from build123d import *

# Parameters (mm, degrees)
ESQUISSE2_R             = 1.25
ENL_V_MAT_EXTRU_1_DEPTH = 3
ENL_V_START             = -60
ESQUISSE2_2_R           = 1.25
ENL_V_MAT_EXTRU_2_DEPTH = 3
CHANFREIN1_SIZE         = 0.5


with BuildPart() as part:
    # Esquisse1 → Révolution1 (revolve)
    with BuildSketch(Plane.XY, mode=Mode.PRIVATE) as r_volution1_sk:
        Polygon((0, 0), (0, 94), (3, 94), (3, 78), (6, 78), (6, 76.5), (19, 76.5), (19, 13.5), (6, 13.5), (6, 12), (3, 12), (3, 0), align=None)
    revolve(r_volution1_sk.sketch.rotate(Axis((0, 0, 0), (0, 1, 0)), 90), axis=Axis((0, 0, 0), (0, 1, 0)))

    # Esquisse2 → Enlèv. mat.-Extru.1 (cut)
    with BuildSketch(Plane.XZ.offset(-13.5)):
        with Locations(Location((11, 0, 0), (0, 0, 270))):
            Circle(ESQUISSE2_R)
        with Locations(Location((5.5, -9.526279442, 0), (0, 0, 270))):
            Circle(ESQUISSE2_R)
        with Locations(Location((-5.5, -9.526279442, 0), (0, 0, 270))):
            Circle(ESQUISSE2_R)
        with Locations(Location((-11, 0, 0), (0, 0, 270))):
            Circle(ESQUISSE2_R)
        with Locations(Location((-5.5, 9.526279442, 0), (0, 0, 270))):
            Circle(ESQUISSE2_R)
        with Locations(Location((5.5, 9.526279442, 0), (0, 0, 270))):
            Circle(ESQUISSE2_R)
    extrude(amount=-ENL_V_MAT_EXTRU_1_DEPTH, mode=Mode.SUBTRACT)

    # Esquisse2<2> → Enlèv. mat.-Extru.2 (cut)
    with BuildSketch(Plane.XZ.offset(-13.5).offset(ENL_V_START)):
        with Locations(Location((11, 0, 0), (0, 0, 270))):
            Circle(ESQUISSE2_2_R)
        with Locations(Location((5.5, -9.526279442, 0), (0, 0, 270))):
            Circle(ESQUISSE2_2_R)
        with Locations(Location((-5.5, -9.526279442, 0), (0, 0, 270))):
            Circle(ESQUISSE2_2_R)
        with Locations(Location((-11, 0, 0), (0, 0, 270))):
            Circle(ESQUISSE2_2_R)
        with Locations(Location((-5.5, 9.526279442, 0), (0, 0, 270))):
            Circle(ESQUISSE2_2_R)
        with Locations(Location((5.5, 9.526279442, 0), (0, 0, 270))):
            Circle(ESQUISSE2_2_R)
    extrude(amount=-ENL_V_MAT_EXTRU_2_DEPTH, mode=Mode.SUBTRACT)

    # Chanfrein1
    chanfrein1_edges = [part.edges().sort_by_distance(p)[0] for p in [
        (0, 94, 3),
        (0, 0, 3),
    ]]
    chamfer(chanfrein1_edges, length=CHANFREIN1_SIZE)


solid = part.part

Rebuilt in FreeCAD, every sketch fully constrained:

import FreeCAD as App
import Part
import Sketcher


def edges_at(feature, points):
    """Names of the edges that pass closest to the given points."""
    edges = feature.Shape.Edges
    near = lambda p: min(range(len(edges)), key=lambda i: edges[i].distToShape(Part.Vertex(*p))[0])
    return sorted({f"Edge{near(p) + 1}" for p in points})

doc = App.newDocument("Part")
params = doc.addObject("Spreadsheet::Sheet", "Params")
for row, (alias, value) in enumerate([
    ("sketch1_width", "3 mm"),
    ("sketch1_width2", "13 mm"),
    ("sketch1_height", "94 mm"),
    ("sketch1_height2", "12 mm"),
    ("sketch1_height3", "63 mm"),
    ("revolution_angle", "360 deg"),
    ("sketch2_diameter", "2.5 mm"),
    ("pocket1_length", "3 mm"),
    ("sketch3_diameter", "2.5 mm"),
    ("pocket2_length", "3 mm"),
    ("chamfer_size", "0.5 mm"),
], start=1):
    params.set(f"A{row}", alias)
    params.set(f"B{row}", "=" + value)
    params.setAlias(f"B{row}", alias)

body = doc.addObject("PartDesign::Body", "Body")

sketch1 = body.newObject("Sketcher::SketchObject", "Sketch")
sketch1.AttachmentSupport = (doc.getObject("XY_Plane"), [""])
sketch1.MapMode = "FlatFace"
sketch1.addGeometry([
    Part.LineSegment(App.Vector(0, 94, 0), App.Vector(0, 0, 0)),
    Part.LineSegment(App.Vector(0, 0, 0), App.Vector(3, 0, 0)),
    Part.LineSegment(App.Vector(3, 0, 0), App.Vector(3, 12, 0)),
    Part.LineSegment(App.Vector(3, 12, 0), App.Vector(6, 12, 0)),
    Part.LineSegment(App.Vector(6, 12, 0), App.Vector(6, 13.5, 0)),
    Part.LineSegment(App.Vector(6, 13.5, 0), App.Vector(19, 13.5, 0)),
    Part.LineSegment(App.Vector(19, 13.5, 0), App.Vector(19, 76.5, 0)),
    Part.LineSegment(App.Vector(19, 76.5, 0), App.Vector(6, 76.5, 0)),
    Part.LineSegment(App.Vector(6, 76.5, 0), App.Vector(6, 78, 0)),
    Part.LineSegment(App.Vector(6, 78, 0), App.Vector(3, 78, 0)),
    Part.LineSegment(App.Vector(3, 78, 0), App.Vector(3, 94, 0)),
    Part.LineSegment(App.Vector(3, 94, 0), App.Vector(0, 94, 0)),
], False)
sketch1.addConstraint([
    Sketcher.Constraint("Coincident", 0, 2, 1, 1),
    Sketcher.Constraint("Coincident", 1, 2, 2, 1),
    Sketcher.Constraint("Coincident", 2, 2, 3, 1),
    Sketcher.Constraint("Coincident", 3, 2, 4, 1),
    Sketcher.Constraint("Coincident", 4, 2, 5, 1),
    Sketcher.Constraint("Coincident", 5, 2, 6, 1),
    Sketcher.Constraint("Coincident", 6, 2, 7, 1),
    Sketcher.Constraint("Coincident", 7, 2, 8, 1),
    Sketcher.Constraint("Coincident", 8, 2, 9, 1),
    Sketcher.Constraint("Coincident", 9, 2, 10, 1),
    Sketcher.Constraint("Coincident", 10, 2, 11, 1),
    Sketcher.Constraint("Coincident", 11, 2, 0, 1),
    Sketcher.Constraint("Vertical", 0),
    Sketcher.Constraint("Horizontal", 1),
    Sketcher.Constraint("Vertical", 2),
    Sketcher.Constraint("Horizontal", 3),
    Sketcher.Constraint("Vertical", 4),
    Sketcher.Constraint("Horizontal", 5),
    Sketcher.Constraint("Vertical", 6),
    Sketcher.Constraint("Horizontal", 7),
    Sketcher.Constraint("Vertical", 8),
    Sketcher.Constraint("Horizontal", 9),
    Sketcher.Constraint("Vertical", 10),
    Sketcher.Constraint("Horizontal", 11),
    Sketcher.Constraint("Coincident", 0, 2, -1, 1),
    Sketcher.Constraint("Vertical", 4, 2, 7, 2),
    Sketcher.Constraint("Vertical", 2, 2, 9, 2),
    Sketcher.Constraint("Equal", 1, 3),
    Sketcher.Constraint("Equal", 4, 8),
    Sketcher.Constraint("DistanceX", 1, 1, 1, 2, 3.0),
    Sketcher.Constraint("DistanceX", 5, 1, 5, 2, 13.0),
    Sketcher.Constraint("DistanceY", 0, 2, 0, 1, 94.0),
    Sketcher.Constraint("DistanceY", 2, 1, 2, 2, 12.0),
    Sketcher.Constraint("DistanceY", 6, 1, 6, 2, 63.0),
    Sketcher.Constraint("DistanceY", 10, 1, 10, 2, 16.0),
])
sketch1.setExpression("Constraints[29]", "Params.sketch1_width")
sketch1.setExpression("Constraints[30]", "Params.sketch1_width2")
sketch1.setExpression("Constraints[31]", "Params.sketch1_height")
sketch1.setExpression("Constraints[32]", "Params.sketch1_height2")
sketch1.setExpression("Constraints[33]", "Params.sketch1_height3")
revolution = body.newObject("PartDesign::Revolution", "Revolution")
revolution.Profile = sketch1
revolution.ReferenceAxis = (sketch1, ["V_Axis"])
revolution.setExpression("Angle", "Params.revolution_angle")

sketch2 = body.newObject("Sketcher::SketchObject", "Sketch001")
sketch2.AttachmentSupport = (doc.getObject("XZ_Plane"), [""])
sketch2.MapMode = "FlatFace"
sketch2.AttachmentOffset = App.Placement(App.Vector(0, 0, -13.5), App.Rotation())
sketch2.addGeometry([
    Part.Circle(App.Vector(11, 0, 0), App.Vector(0, 0, 1), 1.2),
    Part.Circle(App.Vector(5.5, -9.5, 0), App.Vector(0, 0, 1), 1.2),
    Part.Circle(App.Vector(-5.5, -9.5, 0), App.Vector(0, 0, 1), 1.2),
    Part.Circle(App.Vector(-11, 0, 0), App.Vector(0, 0, 1), 1.2),
    Part.Circle(App.Vector(-5.5, 9.5, 0), App.Vector(0, 0, 1), 1.2),
    Part.Circle(App.Vector(5.5, 9.5, 0), App.Vector(0, 0, 1), 1.2),
], False)
sketch2.addConstraint([
    Sketcher.Constraint("Equal", 0, 1),
    Sketcher.Constraint("Equal", 1, 2),
    Sketcher.Constraint("Equal", 2, 3),
    Sketcher.Constraint("Equal", 3, 4),
    Sketcher.Constraint("Equal", 4, 5),
    Sketcher.Constraint("Symmetric", 0, 3, 3, 3, -1, 1),
    Sketcher.Constraint("Symmetric", 1, 3, 4, 3, -1, 1),
    Sketcher.Constraint("Symmetric", 2, 3, 5, 3, -1, 1),
    Sketcher.Constraint("Symmetric", 1, 3, 2, 3, -2),
    Sketcher.Constraint("PointOnObject", 0, 3, -1),
    Sketcher.Constraint("Diameter", 0, 2.5),
    Sketcher.Constraint("DistanceX", -1, 1, 0, 3, 11.0),
    Sketcher.Constraint("DistanceX", 2, 3, 1, 3, 11.0),
    Sketcher.Constraint("DistanceY", 1, 3, -1, 1, 9.526279),
])
sketch2.setExpression("Constraints[10]", "Params.sketch2_diameter")
pocket1 = body.newObject("PartDesign::Pocket", "Pocket")
pocket1.Profile = sketch2
pocket1.setExpression("Length", "Params.pocket1_length")

sketch3 = body.newObject("Sketcher::SketchObject", "Sketch002")
sketch3.AttachmentSupport = (doc.getObject("XZ_Plane"), [""])
sketch3.MapMode = "FlatFace"
sketch3.AttachmentOffset = App.Placement(App.Vector(0, 0, -73.5), App.Rotation())
sketch3.addGeometry([
    Part.Circle(App.Vector(11, 0, 0), App.Vector(0, 0, 1), 1.2),
    Part.Circle(App.Vector(5.5, -9.5, 0), App.Vector(0, 0, 1), 1.2),
    Part.Circle(App.Vector(-5.5, -9.5, 0), App.Vector(0, 0, 1), 1.2),
    Part.Circle(App.Vector(-11, 0, 0), App.Vector(0, 0, 1), 1.2),
    Part.Circle(App.Vector(-5.5, 9.5, 0), App.Vector(0, 0, 1), 1.2),
    Part.Circle(App.Vector(5.5, 9.5, 0), App.Vector(0, 0, 1), 1.2),
], False)
sketch3.addConstraint([
    Sketcher.Constraint("Equal", 0, 1),
    Sketcher.Constraint("Equal", 1, 2),
    Sketcher.Constraint("Equal", 2, 3),
    Sketcher.Constraint("Equal", 3, 4),
    Sketcher.Constraint("Equal", 4, 5),
    Sketcher.Constraint("Symmetric", 0, 3, 3, 3, -1, 1),
    Sketcher.Constraint("Symmetric", 1, 3, 4, 3, -1, 1),
    Sketcher.Constraint("Symmetric", 2, 3, 5, 3, -1, 1),
    Sketcher.Constraint("Symmetric", 1, 3, 2, 3, -2),
    Sketcher.Constraint("PointOnObject", 0, 3, -1),
    Sketcher.Constraint("Diameter", 0, 2.5),
    Sketcher.Constraint("DistanceX", -1, 1, 0, 3, 11.0),
    Sketcher.Constraint("DistanceX", 2, 3, 1, 3, 11.0),
    Sketcher.Constraint("DistanceY", 1, 3, -1, 1, 9.526279),
])
sketch3.setExpression("Constraints[10]", "Params.sketch3_diameter")
pocket2 = body.newObject("PartDesign::Pocket", "Pocket001")
pocket2.Profile = sketch3
pocket2.setExpression("Length", "Params.pocket2_length")
doc.recompute()

chamfer = body.newObject("PartDesign::Chamfer", "Chamfer")
chamfer.Base = (pocket2, edges_at(pocket2, [(0, 94, 3), (0, 0, 3)]))
chamfer.setExpression("Size", "Params.chamfer_size")

doc.recompute()
